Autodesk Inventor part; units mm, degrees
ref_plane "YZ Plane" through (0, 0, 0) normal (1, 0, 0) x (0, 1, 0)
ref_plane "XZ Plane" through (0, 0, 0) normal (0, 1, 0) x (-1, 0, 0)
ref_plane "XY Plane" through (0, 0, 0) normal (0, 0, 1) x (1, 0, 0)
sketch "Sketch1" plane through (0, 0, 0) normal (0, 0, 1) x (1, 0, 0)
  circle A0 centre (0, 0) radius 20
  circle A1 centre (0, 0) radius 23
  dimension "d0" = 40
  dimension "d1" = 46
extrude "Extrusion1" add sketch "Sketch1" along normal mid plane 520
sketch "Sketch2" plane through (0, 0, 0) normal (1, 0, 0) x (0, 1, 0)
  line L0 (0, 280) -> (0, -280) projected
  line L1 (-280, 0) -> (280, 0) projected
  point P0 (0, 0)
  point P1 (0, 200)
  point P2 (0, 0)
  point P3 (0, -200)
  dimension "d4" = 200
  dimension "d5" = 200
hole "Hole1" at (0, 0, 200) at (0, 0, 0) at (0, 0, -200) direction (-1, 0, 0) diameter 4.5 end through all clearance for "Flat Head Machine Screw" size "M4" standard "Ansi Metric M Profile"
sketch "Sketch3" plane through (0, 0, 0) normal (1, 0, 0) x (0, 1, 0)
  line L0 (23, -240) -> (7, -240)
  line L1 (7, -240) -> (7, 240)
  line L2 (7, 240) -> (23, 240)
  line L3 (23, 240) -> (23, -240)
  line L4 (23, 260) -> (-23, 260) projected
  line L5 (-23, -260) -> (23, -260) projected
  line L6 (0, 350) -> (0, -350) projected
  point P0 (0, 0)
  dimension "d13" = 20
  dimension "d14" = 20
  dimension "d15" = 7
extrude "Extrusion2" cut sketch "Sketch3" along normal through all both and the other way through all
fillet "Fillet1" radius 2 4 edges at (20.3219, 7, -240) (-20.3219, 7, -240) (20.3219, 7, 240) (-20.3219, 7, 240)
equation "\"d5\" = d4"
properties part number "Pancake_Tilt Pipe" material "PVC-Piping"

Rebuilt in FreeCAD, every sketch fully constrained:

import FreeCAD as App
import Part
import Sketcher

V = App.Vector
Q = App.Units.Quantity


def edges_at(feature, points):
    """Names of the edges that pass closest to the given points."""
    edges = feature.Shape.Edges
    near = lambda p: min(range(len(edges)), key=lambda i: edges[i].distToShape(Part.Vertex(*p))[0])
    return sorted({f"Edge{near(p) + 1}" for p in points})


def add_polygon(sketch, points):
    """Adds a closed chain of lines whose ends are joined by coincident constraints."""
    first, n = sketch.GeometryCount, len(points)
    for a, b in zip(points, points[1:] + points[:1]):
        sketch.addGeometry(Part.LineSegment(App.Vector(*a, 0), App.Vector(*b, 0)), False)
    for i in range(n):
        sketch.addConstraint(Sketcher.Constraint("Coincident", first + i, 2, first + (i + 1) % n, 1))

doc = App.newDocument("Part")
params = doc.addObject("Spreadsheet::Sheet", "Params")
for row, (alias, value) in enumerate([
    ("sketch1_diameter", "46 mm"),
    ("sketch1_diameter2", "40 mm"),
    ("pad1_length", "520 mm"),
    ("sketch2_diameter", "4.5 mm"),
    ("hole_diameter", "4.5 mm"),
    ("sketch3_width", "16 mm"),
    ("sketch3_height", "480 mm"),
    ("fillet_radius", "2 mm"),
], start=1):
    params.set(f"A{row}", alias)
    params.set(f"B{row}", "=" + value)
    params.setAlias(f"B{row}", alias)

body = doc.addObject("PartDesign::Body", "Body")

# Sketch on XY plane
sketch1 = doc.addObject("Sketcher::SketchObject", "Sketch")
body.addObject(sketch1)
sketch1.AttachmentSupport = (doc.XY_Plane, [""])
sketch1.MapMode = "FlatFace"
sketch1.addGeometry(Part.Circle(V(0, 0, 0), V(0, 0, 1), 23), False)
sketch1.addGeometry(Part.Circle(V(0, 0, 0), V(0, 0, 1), 20), False)
sketch1.addConstraint(Sketcher.Constraint("Coincident", 0, 3, -1, 1))
sketch1.addConstraint(Sketcher.Constraint("Coincident", 1, 3, -1, 1))
sketch1.addConstraint(Sketcher.Constraint("Diameter", 0, Q("46 mm")))
sketch1.addConstraint(Sketcher.Constraint("Diameter", 1, Q("40 mm")))
sketch1.setExpression("Constraints[2]", "Params.sketch1_diameter")
sketch1.setExpression("Constraints[3]", "Params.sketch1_diameter2")
pad1 = doc.addObject("PartDesign::Pad", "Pad")
body.addObject(pad1)
pad1.Profile = sketch1
pad1.setExpression("Length", "Params.pad1_length")
pad1.Midplane = True

# Sketch on YZ plane
sketch2 = doc.addObject("Sketcher::SketchObject", "Sketch001")
body.addObject(sketch2)
sketch2.AttachmentSupport = (doc.YZ_Plane, [""])
sketch2.MapMode = "FlatFace"
sketch2.addGeometry(Part.Circle(V(0, 200, 0), V(0, 0, 1), 2.2), False)
sketch2.addGeometry(Part.Circle(V(0, 0, 0), V(0, 0, 1), 2.2), False)
sketch2.addGeometry(Part.Circle(V(0, -200, 0), V(0, 0, 1), 2.2), False)
sketch2.addConstraint(Sketcher.Constraint("Coincident", 1, 3, -1, 1))
sketch2.addConstraint(Sketcher.Constraint("Equal", 0, 1))
sketch2.addConstraint(Sketcher.Constraint("Equal", 1, 2))
sketch2.addConstraint(Sketcher.Constraint("Symmetric", 0, 3, 2, 3, -1, 1))
sketch2.addConstraint(Sketcher.Constraint("PointOnObject", 0, 3, -2))
sketch2.addConstraint(Sketcher.Constraint("Diameter", 0, Q("4.5 mm")))
sketch2.addConstraint(Sketcher.Constraint("DistanceY", -1, 1, 0, 3, Q("200 mm")))
sketch2.setExpression("Constraints[5]", "Params.sketch2_diameter")
doc.recompute()
hole = doc.addObject("PartDesign::Hole", "Hole")
body.addObject(hole)
hole.Profile = sketch2
hole.ThreadType = "None"
hole.setExpression("Diameter", "Params.hole_diameter")
hole.DepthType = "ThroughAll"

# Sketch on YZ plane
sketch3 = doc.addObject("Sketcher::SketchObject", "Sketch002")
body.addObject(sketch3)
sketch3.AttachmentSupport = (doc.YZ_Plane, [""])
sketch3.MapMode = "FlatFace"
add_polygon(sketch3, [(7, -240), (23, -240), (23, 240), (7, 240)])  # lines 0-3
sketch3.addConstraint(Sketcher.Constraint("Horizontal", 0))
sketch3.addConstraint(Sketcher.Constraint("Vertical", 1))
sketch3.addConstraint(Sketcher.Constraint("Horizontal", 2))
sketch3.addConstraint(Sketcher.Constraint("Vertical", 3))
sketch3.addConstraint(Sketcher.Constraint("DistanceX", -1, 1, 2, 2, Q("7 mm")))
sketch3.addConstraint(Sketcher.Constraint("DistanceX", 0, 1, 0, 2, Q("16 mm")))
sketch3.addConstraint(Sketcher.Constraint("DistanceY", 1, 1, 1, 2, Q("480 mm")))
sketch3.addConstraint(Sketcher.Constraint("DistanceY", 0, 2, -1, 1, Q("240 mm")))
sketch3.setExpression("Constraints[9]", "Params.sketch3_width")
sketch3.setExpression("Constraints[10]", "Params.sketch3_height")
pocket1 = doc.addObject("PartDesign::Pocket", "Pocket")
body.addObject(pocket1)
pocket1.Profile = sketch3
pocket1.Type = "ThroughAll"
pocket1.Midplane = True
doc.recompute()

fillet = doc.addObject("PartDesign::Fillet", "Fillet")
body.addObject(fillet)
fillet.Base = (pocket1, edges_at(pocket1, [
    (20.322, 7, -240),
    (-20.322, 7, -240),
    (20.322, 7, 240),
    (-20.322, 7, 240),
]))
fillet.setExpression("Radius", "Params.fillet_radius")

doc.recompute()
